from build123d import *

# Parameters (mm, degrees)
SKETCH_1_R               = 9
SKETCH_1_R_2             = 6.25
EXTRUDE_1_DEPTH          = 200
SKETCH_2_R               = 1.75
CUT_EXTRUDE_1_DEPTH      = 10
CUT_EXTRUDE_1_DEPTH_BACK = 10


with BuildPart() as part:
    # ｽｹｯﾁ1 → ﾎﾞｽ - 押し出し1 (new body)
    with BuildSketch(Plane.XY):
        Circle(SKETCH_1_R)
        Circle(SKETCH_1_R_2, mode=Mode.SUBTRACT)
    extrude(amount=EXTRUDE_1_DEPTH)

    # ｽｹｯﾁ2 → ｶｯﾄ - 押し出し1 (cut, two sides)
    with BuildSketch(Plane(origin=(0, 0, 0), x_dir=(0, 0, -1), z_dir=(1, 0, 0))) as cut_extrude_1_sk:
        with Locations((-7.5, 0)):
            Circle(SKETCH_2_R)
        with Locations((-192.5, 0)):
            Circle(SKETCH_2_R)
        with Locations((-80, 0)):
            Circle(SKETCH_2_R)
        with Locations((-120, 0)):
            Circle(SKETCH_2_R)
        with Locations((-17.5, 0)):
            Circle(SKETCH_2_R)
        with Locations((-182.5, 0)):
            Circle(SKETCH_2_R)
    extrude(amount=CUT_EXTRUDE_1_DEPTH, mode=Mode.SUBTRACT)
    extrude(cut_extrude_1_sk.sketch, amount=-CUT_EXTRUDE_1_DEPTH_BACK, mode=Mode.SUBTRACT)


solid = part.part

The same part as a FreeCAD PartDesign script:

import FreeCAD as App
import Part
import Sketcher
from FreeCAD import Vector
Q = App.Units.Quantity

doc = App.newDocument("Part")
params = doc.addObject("Spreadsheet::Sheet", "Params")
for row, (alias, value) in enumerate([
    ("sketch1_diameter", "18 mm"),
    ("sketch1_diameter2", "12.5 mm"),
    ("pad1_length", "200 mm"),
    ("sketch2_diameter", "3.5 mm"),
], start=1):
    params.set(f"A{row}", alias)
    params.set(f"B{row}", "=" + value)
    params.setAlias(f"B{row}", alias)

body = doc.addObject("PartDesign::Body", "Body")

# Sketch on XY plane
sketch1 = doc.addObject("Sketcher::SketchObject", "Sketch")
body.addObject(sketch1)
sketch1.AttachmentSupport = (doc.XY_Plane, [""])
sketch1.MapMode = "FlatFace"
sketch1.addGeometry([
    Part.Circle(Vector(0, 0, 0), Vector(0, 0, 1), 9),
    Part.Circle(Vector(0, 0, 0), Vector(0, 0, 1), 6),
], False)
sketch1.addConstraint([
    Sketcher.Constraint("Coincident", 0, 3, -1, 1),
    Sketcher.Constraint("Coincident", 1, 3, -1, 1),
    Sketcher.Constraint("Diameter", 0, Q("18 mm")),
    Sketcher.Constraint("Diameter", 1, Q("12.5 mm")),
])
sketch1.setExpression("Constraints[2]", "Params.sketch1_diameter")
sketch1.setExpression("Constraints[3]", "Params.sketch1_diameter2")
pad1 = doc.addObject("PartDesign::Pad", "Pad")
body.addObject(pad1)
pad1.Profile = sketch1
pad1.setExpression("Length", "Params.pad1_length")

# Sketch on YZ plane
sketch2 = doc.addObject("Sketcher::SketchObject", "Sketch001")
body.addObject(sketch2)
sketch2.AttachmentSupport = (doc.YZ_Plane, [""])
sketch2.MapMode = "FlatFace"
sketch2.addGeometry([
    Part.Circle(Vector(0, 7.5, 0), Vector(0, 0, 1), 1.8),  # 0
    Part.Circle(Vector(0, 192.5, 0), Vector(0, 0, 1), 1.8),  # 1
    Part.Circle(Vector(0, 80, 0), Vector(0, 0, 1), 1.8),  # 2
    Part.Circle(Vector(0, 120, 0), Vector(0, 0, 1), 1.8),  # 3
    Part.Circle(Vector(0, 17.5, 0), Vector(0, 0, 1), 1.8),  # 4
    Part.Circle(Vector(0, 182.5, 0), Vector(0, 0, 1), 1.8),  # 5
], False)
sketch2.addConstraint([
    Sketcher.Constraint("Equal", 0, 1),
    Sketcher.Constraint("Equal", 1, 2),
    Sketcher.Constraint("Equal", 2, 3),
    Sketcher.Constraint("Equal", 3, 4),
    Sketcher.Constraint("Equal", 4, 5),
    Sketcher.Constraint("PointOnObject", 0, 3, -2),
    Sketcher.Constraint("PointOnObject", 1, 3, -2),
    Sketcher.Constraint("PointOnObject", 2, 3, -2),
    Sketcher.Constraint("PointOnObject", 3, 3, -2),
    Sketcher.Constraint("PointOnObject", 4, 3, -2),
    Sketcher.Constraint("PointOnObject", 5, 3, -2),
    Sketcher.Constraint("Diameter", 0, Q("3.5 mm")),
    Sketcher.Constraint("DistanceY", -1, 1, 2, 3, Q("80 mm")),
    Sketcher.Constraint("DistanceY", -1, 1, 3, 3, Q("120 mm")),
    Sketcher.Constraint("DistanceY", 0, 3, 1, 3, Q("185 mm")),
    Sketcher.Constraint("DistanceY", 0, 3, 4, 3, Q("10 mm")),
    Sketcher.Constraint("DistanceY", 5, 3, 1, 3, Q("10 mm")),
    Sketcher.Constraint("DistanceY", -1, 1, 0, 3, Q("7.5 mm")),
])
sketch2.setExpression("Constraints[11]", "Params.sketch2_diameter")
pocket1 = doc.addObject("PartDesign::Pocket", "Pocket")
body.addObject(pocket1)
pocket1.Profile = sketch2
pocket1.Type = "ThroughAll"
pocket1.Midplane = True

doc.recompute()
